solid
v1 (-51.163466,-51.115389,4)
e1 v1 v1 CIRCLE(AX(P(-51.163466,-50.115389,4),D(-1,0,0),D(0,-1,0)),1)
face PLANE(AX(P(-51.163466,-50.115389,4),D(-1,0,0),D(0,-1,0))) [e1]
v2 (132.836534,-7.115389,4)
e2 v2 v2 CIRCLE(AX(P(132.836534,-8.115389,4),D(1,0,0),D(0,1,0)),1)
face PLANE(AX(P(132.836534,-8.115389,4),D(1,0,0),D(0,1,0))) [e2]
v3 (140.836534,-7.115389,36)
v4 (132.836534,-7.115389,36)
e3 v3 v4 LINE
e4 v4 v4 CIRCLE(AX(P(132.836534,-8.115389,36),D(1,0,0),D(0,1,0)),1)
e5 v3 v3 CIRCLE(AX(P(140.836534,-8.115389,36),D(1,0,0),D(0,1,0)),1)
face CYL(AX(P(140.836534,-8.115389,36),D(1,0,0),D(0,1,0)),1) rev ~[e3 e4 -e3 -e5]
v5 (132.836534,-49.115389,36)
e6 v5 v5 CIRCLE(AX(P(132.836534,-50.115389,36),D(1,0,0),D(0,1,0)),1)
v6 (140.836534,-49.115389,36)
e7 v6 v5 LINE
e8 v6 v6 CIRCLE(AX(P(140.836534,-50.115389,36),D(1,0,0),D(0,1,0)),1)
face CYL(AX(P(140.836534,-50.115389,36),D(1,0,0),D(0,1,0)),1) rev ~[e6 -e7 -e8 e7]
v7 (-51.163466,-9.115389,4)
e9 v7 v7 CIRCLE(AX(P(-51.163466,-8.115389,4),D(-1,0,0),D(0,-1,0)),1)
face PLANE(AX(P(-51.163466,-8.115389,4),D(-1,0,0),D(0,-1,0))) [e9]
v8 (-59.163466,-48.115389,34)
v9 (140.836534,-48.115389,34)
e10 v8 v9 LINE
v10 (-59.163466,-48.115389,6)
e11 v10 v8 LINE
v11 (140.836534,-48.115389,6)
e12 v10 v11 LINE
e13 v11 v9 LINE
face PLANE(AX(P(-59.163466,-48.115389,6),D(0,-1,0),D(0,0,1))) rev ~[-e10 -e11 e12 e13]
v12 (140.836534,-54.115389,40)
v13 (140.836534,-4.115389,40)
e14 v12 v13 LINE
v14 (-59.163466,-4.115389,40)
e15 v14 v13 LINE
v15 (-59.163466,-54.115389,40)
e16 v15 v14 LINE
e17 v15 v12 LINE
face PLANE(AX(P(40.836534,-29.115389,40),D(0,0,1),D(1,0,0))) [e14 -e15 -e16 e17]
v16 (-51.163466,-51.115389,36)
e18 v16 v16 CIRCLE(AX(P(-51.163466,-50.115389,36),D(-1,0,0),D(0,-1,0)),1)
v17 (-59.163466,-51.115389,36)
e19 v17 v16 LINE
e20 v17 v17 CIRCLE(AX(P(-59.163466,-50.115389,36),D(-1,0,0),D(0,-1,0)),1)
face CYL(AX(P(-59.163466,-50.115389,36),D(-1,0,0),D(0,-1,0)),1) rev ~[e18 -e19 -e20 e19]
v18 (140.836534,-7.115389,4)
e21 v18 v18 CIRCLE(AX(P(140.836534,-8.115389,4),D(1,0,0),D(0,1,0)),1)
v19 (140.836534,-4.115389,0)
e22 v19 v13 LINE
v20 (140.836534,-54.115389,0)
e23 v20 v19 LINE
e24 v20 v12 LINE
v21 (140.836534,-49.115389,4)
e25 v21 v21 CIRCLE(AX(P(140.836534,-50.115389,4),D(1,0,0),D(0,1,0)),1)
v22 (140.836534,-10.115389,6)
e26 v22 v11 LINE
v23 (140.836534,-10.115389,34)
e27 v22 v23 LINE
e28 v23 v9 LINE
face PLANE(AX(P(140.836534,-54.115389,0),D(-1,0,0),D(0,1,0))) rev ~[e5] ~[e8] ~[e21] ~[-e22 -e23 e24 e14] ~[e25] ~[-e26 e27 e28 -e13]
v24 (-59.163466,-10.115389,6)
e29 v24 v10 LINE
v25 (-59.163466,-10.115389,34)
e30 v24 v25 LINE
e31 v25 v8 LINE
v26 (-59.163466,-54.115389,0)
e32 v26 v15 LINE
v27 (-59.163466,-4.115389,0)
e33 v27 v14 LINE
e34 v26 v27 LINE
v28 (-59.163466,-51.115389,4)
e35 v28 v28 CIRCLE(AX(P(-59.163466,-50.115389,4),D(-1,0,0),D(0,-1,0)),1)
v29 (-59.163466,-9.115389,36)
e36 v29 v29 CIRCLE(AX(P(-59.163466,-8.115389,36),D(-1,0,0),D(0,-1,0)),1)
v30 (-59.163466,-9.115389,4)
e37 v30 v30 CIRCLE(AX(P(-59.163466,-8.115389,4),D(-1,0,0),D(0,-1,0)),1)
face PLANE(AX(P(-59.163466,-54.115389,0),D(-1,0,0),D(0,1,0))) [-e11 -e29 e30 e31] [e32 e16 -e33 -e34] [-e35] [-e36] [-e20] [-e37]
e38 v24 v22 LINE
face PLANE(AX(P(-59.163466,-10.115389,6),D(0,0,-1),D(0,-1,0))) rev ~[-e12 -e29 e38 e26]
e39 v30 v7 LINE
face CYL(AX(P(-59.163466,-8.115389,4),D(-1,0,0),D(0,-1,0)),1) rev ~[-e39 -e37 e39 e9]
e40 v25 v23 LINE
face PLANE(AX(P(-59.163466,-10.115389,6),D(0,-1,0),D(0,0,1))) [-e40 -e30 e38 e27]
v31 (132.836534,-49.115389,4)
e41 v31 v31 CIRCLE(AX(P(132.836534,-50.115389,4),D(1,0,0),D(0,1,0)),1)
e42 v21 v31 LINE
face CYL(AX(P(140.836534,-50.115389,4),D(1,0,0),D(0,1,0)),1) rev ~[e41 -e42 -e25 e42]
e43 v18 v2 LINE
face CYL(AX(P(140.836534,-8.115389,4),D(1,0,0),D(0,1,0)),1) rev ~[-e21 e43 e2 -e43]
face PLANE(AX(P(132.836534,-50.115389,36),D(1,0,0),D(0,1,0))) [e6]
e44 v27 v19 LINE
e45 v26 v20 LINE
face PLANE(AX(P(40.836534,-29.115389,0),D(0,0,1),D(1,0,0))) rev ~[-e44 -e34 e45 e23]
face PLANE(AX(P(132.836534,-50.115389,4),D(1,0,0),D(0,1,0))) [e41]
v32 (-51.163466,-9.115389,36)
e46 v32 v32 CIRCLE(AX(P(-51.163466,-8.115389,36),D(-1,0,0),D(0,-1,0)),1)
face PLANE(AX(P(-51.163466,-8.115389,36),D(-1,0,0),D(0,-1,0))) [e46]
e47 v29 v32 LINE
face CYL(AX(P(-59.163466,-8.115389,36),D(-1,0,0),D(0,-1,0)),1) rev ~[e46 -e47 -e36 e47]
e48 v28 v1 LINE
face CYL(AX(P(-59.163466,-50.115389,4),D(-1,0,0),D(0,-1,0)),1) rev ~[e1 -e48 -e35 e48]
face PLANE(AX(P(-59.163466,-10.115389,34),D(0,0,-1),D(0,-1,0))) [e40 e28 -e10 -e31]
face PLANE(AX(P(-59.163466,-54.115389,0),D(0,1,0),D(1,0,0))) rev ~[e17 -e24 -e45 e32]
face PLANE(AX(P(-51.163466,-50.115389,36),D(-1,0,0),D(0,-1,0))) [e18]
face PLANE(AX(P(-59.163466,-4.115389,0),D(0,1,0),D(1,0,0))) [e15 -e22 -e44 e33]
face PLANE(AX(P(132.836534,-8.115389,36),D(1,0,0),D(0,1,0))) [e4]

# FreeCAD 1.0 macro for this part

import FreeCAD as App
import Part
import Sketcher
Q = App.Units.Quantity

doc = App.newDocument("Part")
body = doc.addObject("PartDesign::Body", "Body")

# Sketch on XY plane
sketch1 = doc.addObject("Sketcher::SketchObject", "Sketch")
body.addObject(sketch1)
sketch1.AttachmentSupport = (doc.XY_Plane, [""])
sketch1.MapMode = "FlatFace"
sketch1.addGeometry(Part.LineSegment(App.Vector(-59, -4, 0), App.Vector(-59, -54, 0)), False)
sketch1.addGeometry(Part.LineSegment(App.Vector(-59, -54, 0), App.Vector(141, -54, 0)), False)
sketch1.addGeometry(Part.LineSegment(App.Vector(141, -54, 0), App.Vector(141, -4, 0)), False)
sketch1.addGeometry(Part.LineSegment(App.Vector(141, -4, 0), App.Vector(-59, -4, 0)), False)
sketch1.addConstraint(Sketcher.Constraint("Coincident", 0, 2, 1, 1))
sketch1.addConstraint(Sketcher.Constraint("Coincident", 1, 2, 2, 1))
sketch1.addConstraint(Sketcher.Constraint("Coincident", 2, 2, 3, 1))
sketch1.addConstraint(Sketcher.Constraint("Coincident", 3, 2, 0, 1))
sketch1.addConstraint(Sketcher.Constraint("Vertical", 0))
sketch1.addConstraint(Sketcher.Constraint("Horizontal", 1))
sketch1.addConstraint(Sketcher.Constraint("Vertical", 2))
sketch1.addConstraint(Sketcher.Constraint("Horizontal", 3))
sketch1.addConstraint(Sketcher.Constraint("DistanceX", 1, 1, 1, 2, Q("200 mm")))
sketch1.addConstraint(Sketcher.Constraint("DistanceY", 0, 2, 0, 1, Q("50 mm")))
sketch1.addConstraint(Sketcher.Constraint("DistanceY", 0, 2, -1, 1, Q("54.115389 mm")))
sketch1.addConstraint(Sketcher.Constraint("DistanceX", 0, 2, -1, 1, Q("59.163466 mm")))
pad1 = doc.addObject("PartDesign::Pad", "Pad")
body.addObject(pad1)
pad1.Profile = sketch1
pad1.Length = 40

# Sketch on YZ plane
sketch2 = doc.addObject("Sketcher::SketchObject", "Sketch001")
body.addObject(sketch2)
sketch2.AttachmentSupport = (doc.YZ_Plane, [""])
sketch2.MapMode = "FlatFace"
sketch2.AttachmentOffset = App.Placement(App.Vector(0, 0, -59.163466), App.Rotation())
sketch2.addGeometry(Part.LineSegment(App.Vector(-10, 34, 0), App.Vector(-10, 6, 0)), False)
sketch2.addGeometry(Part.LineSegment(App.Vector(-10, 6, 0), App.Vector(-48, 6, 0)), False)
sketch2.addGeometry(Part.LineSegment(App.Vector(-48, 6, 0), App.Vector(-48, 34, 0)), False)
sketch2.addGeometry(Part.LineSegment(App.Vector(-48, 34, 0), App.Vector(-10, 34, 0)), False)
sketch2.addConstraint(Sketcher.Constraint("Coincident", 0, 2, 1, 1))
sketch2.addConstraint(Sketcher.Constraint("Coincident", 1, 2, 2, 1))
sketch2.addConstraint(Sketcher.Constraint("Coincident", 2, 2, 3, 1))
sketch2.addConstraint(Sketcher.Constraint("Coincident", 3, 2, 0, 1))
sketch2.addConstraint(Sketcher.Constraint("Vertical", 0))
sketch2.addConstraint(Sketcher.Constraint("Horizontal", 1))
sketch2.addConstraint(Sketcher.Constraint("Vertical", 2))
sketch2.addConstraint(Sketcher.Constraint("Horizontal", 3))
sketch2.addConstraint(Sketcher.Constraint("DistanceX", 1, 2, 1, 1, Q("38 mm")))
sketch2.addConstraint(Sketcher.Constraint("DistanceY", 0, 2, 0, 1, Q("28 mm")))
sketch2.addConstraint(Sketcher.Constraint("DistanceY", -1, 1, 0, 2, Q("6 mm")))
sketch2.addConstraint(Sketcher.Constraint("DistanceX", 0, 2, -1, 1, Q("10.115389 mm")))
pocket1 = doc.addObject("PartDesign::Pocket", "Pocket")
body.addObject(pocket1)
pocket1.Profile = sketch2
pocket1.Type = "ThroughAll"
pocket1.Reversed = True

# Sketch on YZ plane
sketch3 = doc.addObject("Sketcher::SketchObject", "Sketch002")
body.addObject(sketch3)
sketch3.AttachmentSupport = (doc.YZ_Plane, [""])
sketch3.MapMode = "FlatFace"
sketch3.AttachmentOffset = App.Placement(App.Vector(0, 0, -59.163466), App.Rotation())
sketch3.addGeometry(Part.Circle(App.Vector(-8.1, 36, 0), App.Vector(0, 0, 1), 1), False)
sketch3.addGeometry(Part.Circle(App.Vector(-8.1, 4, 0), App.Vector(0, 0, 1), 1), False)
sketch3.addGeometry(Part.Circle(App.Vector(-50.1, 4, 0), App.Vector(0, 0, 1), 1), False)
sketch3.addGeometry(Part.Circle(App.Vector(-50.1, 36, 0), App.Vector(0, 0, 1), 1), False)
sketch3.addConstraint(Sketcher.Constraint("Equal", 0, 1))
sketch3.addConstraint(Sketcher.Constraint("Equal", 1, 2))
sketch3.addConstraint(Sketcher.Constraint("Equal", 2, 3))
sketch3.addConstraint(Sketcher.Constraint("Horizontal", 1, 3, 2, 3))
sketch3.addConstraint(Sketcher.Constraint("Horizontal", 0, 3, 3, 3))
sketch3.addConstraint(Sketcher.Constraint("Vertical", 0, 3, 1, 3))
sketch3.addConstraint(Sketcher.Constraint("Vertical", 2, 3, 3, 3))
sketch3.addConstraint(Sketcher.Constraint("Diameter", 0, Q("2 mm")))
sketch3.addConstraint(Sketcher.Constraint("DistanceY", -1, 1, 0, 3, Q("36 mm")))
sketch3.addConstraint(Sketcher.Constraint("DistanceY", -1, 1, 1, 3, Q("4 mm")))
sketch3.addConstraint(Sketcher.Constraint("DistanceX", 2, 3, 1, 3, Q("42 mm")))
sketch3.addConstraint(Sketcher.Constraint("DistanceX", 0, 3, -1, 1, Q("8.115389 mm")))
pocket2 = doc.addObject("PartDesign::Pocket", "Pocket001")
body.addObject(pocket2)
pocket2.Profile = sketch3
pocket2.Length = 8
pocket2.Reversed = True

# Sketch on YZ plane
sketch4 = doc.addObject("Sketcher::SketchObject", "Sketch003")
body.addObject(sketch4)
sketch4.AttachmentSupport = (doc.YZ_Plane, [""])
sketch4.MapMode = "FlatFace"
sketch4.AttachmentOffset = App.Placement(App.Vector(0, 0, 140.836534), App.Rotation())
sketch4.addGeometry(Part.Circle(App.Vector(-50.1, 36, 0), App.Vector(0, 0, 1), 1), False)
sketch4.addGeometry(Part.Circle(App.Vector(-8.1, 36, 0), App.Vector(0, 0, 1), 1), False)
sketch4.addGeometry(Part.Circle(App.Vector(-8.1, 4, 0), App.Vector(0, 0, 1), 1), False)
sketch4.addGeometry(Part.Circle(App.Vector(-50.1, 4, 0), App.Vector(0, 0, 1), 1), False)
sketch4.addConstraint(Sketcher.Constraint("Equal", 0, 1))
sketch4.addConstraint(Sketcher.Constraint("Equal", 1, 2))
sketch4.addConstraint(Sketcher.Constraint("Equal", 2, 3))
sketch4.addConstraint(Sketcher.Constraint("Horizontal", 0, 3, 1, 3))
sketch4.addConstraint(Sketcher.Constraint("Horizontal", 2, 3, 3, 3))
sketch4.addConstraint(Sketcher.Constraint("Vertical", 1, 3, 2, 3))
sketch4.addConstraint(Sketcher.Constraint("Vertical", 0, 3, 3, 3))
sketch4.addConstraint(Sketcher.Constraint("Diameter", 0, Q("2 mm")))
sketch4.addConstraint(Sketcher.Constraint("DistanceY", -1, 1, 0, 3, Q("36 mm")))
sketch4.addConstraint(Sketcher.Constraint("DistanceY", -1, 1, 2, 3, Q("4 mm")))
sketch4.addConstraint(Sketcher.Constraint("DistanceX", 0, 3, 1, 3, Q("42 mm")))
sketch4.addConstraint(Sketcher.Constraint("DistanceX", 0, 3, -1, 1, Q("50.115389 mm")))
pocket3 = doc.addObject("PartDesign::Pocket", "Pocket002")
body.addObject(pocket3)
pocket3.Profile = sketch4
pocket3.Length = 8

doc.recompute()
